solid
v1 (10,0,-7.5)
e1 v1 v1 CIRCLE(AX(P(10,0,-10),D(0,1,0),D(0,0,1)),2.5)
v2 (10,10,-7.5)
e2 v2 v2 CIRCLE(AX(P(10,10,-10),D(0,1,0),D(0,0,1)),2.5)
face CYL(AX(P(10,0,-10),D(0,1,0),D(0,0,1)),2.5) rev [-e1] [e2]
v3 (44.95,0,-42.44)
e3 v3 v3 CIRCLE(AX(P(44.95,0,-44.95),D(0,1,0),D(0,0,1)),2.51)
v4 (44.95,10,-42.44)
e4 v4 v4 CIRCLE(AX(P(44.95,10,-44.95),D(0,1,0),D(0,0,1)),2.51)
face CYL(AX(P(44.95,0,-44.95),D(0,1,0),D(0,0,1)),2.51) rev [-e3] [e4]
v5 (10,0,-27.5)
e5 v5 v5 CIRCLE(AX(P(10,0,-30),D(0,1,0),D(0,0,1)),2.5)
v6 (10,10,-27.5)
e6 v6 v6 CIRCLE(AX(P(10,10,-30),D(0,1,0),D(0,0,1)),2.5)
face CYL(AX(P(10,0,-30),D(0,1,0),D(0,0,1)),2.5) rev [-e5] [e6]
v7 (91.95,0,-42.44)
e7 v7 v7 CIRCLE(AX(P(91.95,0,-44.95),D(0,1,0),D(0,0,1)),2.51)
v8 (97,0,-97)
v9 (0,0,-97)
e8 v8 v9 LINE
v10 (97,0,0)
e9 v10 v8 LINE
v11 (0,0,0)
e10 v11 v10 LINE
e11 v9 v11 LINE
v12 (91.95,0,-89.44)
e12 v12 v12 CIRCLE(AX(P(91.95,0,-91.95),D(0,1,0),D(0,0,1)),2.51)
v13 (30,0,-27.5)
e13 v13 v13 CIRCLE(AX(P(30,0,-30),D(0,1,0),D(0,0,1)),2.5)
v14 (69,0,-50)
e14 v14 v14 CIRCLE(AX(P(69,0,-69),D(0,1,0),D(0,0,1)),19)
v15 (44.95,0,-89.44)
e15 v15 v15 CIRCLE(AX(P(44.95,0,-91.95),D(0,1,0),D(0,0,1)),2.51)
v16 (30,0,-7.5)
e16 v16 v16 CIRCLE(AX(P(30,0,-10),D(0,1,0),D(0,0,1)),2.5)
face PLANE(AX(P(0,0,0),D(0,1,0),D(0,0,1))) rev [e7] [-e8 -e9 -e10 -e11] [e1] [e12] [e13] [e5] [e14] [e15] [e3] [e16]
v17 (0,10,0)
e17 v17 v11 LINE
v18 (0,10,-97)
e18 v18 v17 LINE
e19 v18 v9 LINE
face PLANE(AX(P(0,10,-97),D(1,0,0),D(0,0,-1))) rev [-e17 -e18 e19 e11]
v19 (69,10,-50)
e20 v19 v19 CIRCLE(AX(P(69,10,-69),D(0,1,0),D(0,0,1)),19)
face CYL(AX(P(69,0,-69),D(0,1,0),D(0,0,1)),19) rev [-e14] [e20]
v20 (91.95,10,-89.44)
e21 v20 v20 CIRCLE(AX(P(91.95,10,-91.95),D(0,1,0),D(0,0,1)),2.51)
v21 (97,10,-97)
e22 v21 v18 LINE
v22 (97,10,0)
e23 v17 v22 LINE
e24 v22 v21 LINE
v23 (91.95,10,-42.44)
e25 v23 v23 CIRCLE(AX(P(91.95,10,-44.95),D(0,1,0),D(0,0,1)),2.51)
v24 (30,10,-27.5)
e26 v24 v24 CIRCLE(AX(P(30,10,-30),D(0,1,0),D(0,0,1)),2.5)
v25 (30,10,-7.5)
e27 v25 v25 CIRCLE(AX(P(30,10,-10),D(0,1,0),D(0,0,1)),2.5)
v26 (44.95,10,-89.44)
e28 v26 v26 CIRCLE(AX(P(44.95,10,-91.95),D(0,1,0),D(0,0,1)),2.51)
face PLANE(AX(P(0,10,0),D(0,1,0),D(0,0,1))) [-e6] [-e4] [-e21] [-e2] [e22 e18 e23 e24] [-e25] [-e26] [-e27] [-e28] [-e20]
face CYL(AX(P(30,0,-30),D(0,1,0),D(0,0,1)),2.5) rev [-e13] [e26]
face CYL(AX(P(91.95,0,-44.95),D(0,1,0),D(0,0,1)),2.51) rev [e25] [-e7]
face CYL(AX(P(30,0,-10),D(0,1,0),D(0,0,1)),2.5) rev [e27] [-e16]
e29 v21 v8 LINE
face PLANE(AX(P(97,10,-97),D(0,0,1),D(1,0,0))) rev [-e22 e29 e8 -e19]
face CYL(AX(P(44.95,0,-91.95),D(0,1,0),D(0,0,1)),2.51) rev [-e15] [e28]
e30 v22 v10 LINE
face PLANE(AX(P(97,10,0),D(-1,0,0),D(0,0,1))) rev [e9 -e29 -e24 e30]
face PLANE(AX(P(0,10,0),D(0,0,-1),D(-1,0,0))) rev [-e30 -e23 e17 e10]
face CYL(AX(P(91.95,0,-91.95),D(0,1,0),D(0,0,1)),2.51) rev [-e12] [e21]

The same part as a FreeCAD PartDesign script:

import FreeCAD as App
import Part
import Sketcher
from FreeCAD import Vector

doc = App.newDocument("Part")
body = doc.addObject("PartDesign::Body", "Body")

sketch1 = body.newObject("Sketcher::SketchObject", "Sketch")
sketch1.AttachmentSupport = (doc.getObject("XZ_Plane"), [""])
sketch1.MapMode = "FlatFace"
sketch1.addGeometry([
    Part.LineSegment(Vector(0, -97, 0), Vector(0, 0, 0)),
    Part.LineSegment(Vector(0, 0, 0), Vector(97, 0, 0)),
    Part.LineSegment(Vector(97, 0, 0), Vector(97, -97, 0)),
    Part.LineSegment(Vector(97, -97, 0), Vector(0, -97, 0)),
], False)
sketch1.addConstraint([
    Sketcher.Constraint("Coincident", 0, 2, 1, 1),
    Sketcher.Constraint("Coincident", 1, 2, 2, 1),
    Sketcher.Constraint("Coincident", 2, 2, 3, 1),
    Sketcher.Constraint("Coincident", 3, 2, 0, 1),
    Sketcher.Constraint("Vertical", 0),
    Sketcher.Constraint("Horizontal", 1),
    Sketcher.Constraint("Vertical", 2),
    Sketcher.Constraint("Horizontal", 3),
    Sketcher.Constraint("Coincident", 0, 2, -1, 1),
    Sketcher.Constraint("Equal", 3, 0),
    Sketcher.Constraint("DistanceX", 1, 1, 1, 2, 97.0),
])
pad1 = body.newObject("PartDesign::Pad", "Pad")
pad1.Profile = sketch1
pad1.Length = 10
pad1.Reversed = True

sketch2 = body.newObject("Sketcher::SketchObject", "Sketch001")
sketch2.AttachmentSupport = (doc.getObject("XZ_Plane"), [""])
sketch2.MapMode = "FlatFace"
sketch2.AttachmentOffset = App.Placement(Vector(0, 0, -10), App.Rotation())
sketch2.addGeometry([
    Part.Circle(Vector(69, -69, 0), Vector(0, 0, 1), 19),
    Part.Circle(Vector(45, -92, 0), Vector(0, 0, 1), 2.5),
    Part.Circle(Vector(92, -92, 0), Vector(0, 0, 1), 2.5),
    Part.Circle(Vector(92, -45, 0), Vector(0, 0, 1), 2.5),
    Part.Circle(Vector(45, -45, 0), Vector(0, 0, 1), 2.5),
    Part.Circle(Vector(10, -10, 0), Vector(0, 0, 1), 2.5),
    Part.Circle(Vector(30, -10, 0), Vector(0, 0, 1), 2.5),
    Part.Circle(Vector(30, -30, 0), Vector(0, 0, 1), 2.5),
    Part.Circle(Vector(10, -30, 0), Vector(0, 0, 1), 2.5),
], False)
sketch2.addConstraint([
    Sketcher.Constraint("Equal", 1, 2),
    Sketcher.Constraint("Equal", 2, 3),
    Sketcher.Constraint("Equal", 3, 4),
    Sketcher.Constraint("Equal", 5, 6),
    Sketcher.Constraint("Equal", 6, 7),
    Sketcher.Constraint("Equal", 7, 8),
    Sketcher.Constraint("Horizontal", 1, 3, 2, 3),
    Sketcher.Constraint("Horizontal", 3, 3, 4, 3),
    Sketcher.Constraint("Horizontal", 5, 3, 6, 3),
    Sketcher.Constraint("Horizontal", 7, 3, 8, 3),
    Sketcher.Constraint("Vertical", 2, 3, 3, 3),
    Sketcher.Constraint("Vertical", 1, 3, 4, 3),
    Sketcher.Constraint("Vertical", 6, 3, 7, 3),
    Sketcher.Constraint("Vertical", 5, 3, 8, 3),
    Sketcher.Constraint("Diameter", 0, 38.0),
    Sketcher.Constraint("Diameter", 5, 5.0),
    Sketcher.Constraint("Diameter", 1, 5.02),
    Sketcher.Constraint("DistanceX", -1, 1, 0, 3, 69.0),
    Sketcher.Constraint("DistanceY", 0, 3, -1, 1, 69.0),
    Sketcher.Constraint("DistanceX", -1, 1, 5, 3, 10.0),
    Sketcher.Constraint("DistanceY", 5, 3, -1, 1, 10.0),
    Sketcher.Constraint("DistanceX", -1, 1, 6, 3, 30.0),
    Sketcher.Constraint("DistanceY", 7, 3, -1, 1, 30.0),
    Sketcher.Constraint("DistanceX", 1, 3, 2, 3, 47.0),
    Sketcher.Constraint("DistanceY", 2, 3, 3, 3, 47.0),
    Sketcher.Constraint("DistanceX", -1, 1, 1, 3, 44.95),
    Sketcher.Constraint("DistanceY", 1, 3, -1, 1, 91.95),
])
pocket1 = body.newObject("PartDesign::Pocket", "Pocket")
pocket1.Profile = sketch2
pocket1.Length = 10
pocket1.Reversed = True

doc.recompute()
